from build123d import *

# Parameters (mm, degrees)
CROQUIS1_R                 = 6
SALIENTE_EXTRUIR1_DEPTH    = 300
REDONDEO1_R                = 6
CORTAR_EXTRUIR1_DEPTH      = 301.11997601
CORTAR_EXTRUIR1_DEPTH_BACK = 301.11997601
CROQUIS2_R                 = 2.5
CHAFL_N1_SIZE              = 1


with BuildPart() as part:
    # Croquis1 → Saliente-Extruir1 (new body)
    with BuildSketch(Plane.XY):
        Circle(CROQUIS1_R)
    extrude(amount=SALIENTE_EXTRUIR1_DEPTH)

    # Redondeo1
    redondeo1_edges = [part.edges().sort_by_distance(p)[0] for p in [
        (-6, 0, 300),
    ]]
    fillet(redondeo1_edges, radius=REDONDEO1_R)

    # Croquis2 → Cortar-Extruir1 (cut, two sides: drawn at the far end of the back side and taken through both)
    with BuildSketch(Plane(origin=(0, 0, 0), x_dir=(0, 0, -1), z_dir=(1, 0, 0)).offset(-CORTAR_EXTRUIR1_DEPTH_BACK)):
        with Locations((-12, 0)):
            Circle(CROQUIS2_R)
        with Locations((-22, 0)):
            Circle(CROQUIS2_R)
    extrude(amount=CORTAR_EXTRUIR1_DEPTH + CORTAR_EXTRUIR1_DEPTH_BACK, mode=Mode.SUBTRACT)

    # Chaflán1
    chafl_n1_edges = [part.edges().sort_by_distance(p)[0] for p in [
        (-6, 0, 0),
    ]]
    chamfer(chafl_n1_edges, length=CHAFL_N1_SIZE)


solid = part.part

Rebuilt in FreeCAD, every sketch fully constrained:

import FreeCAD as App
import Part
import Sketcher
from FreeCAD import Vector
Q = App.Units.Quantity


def edges_at(feature, points):
    """Names of the edges that pass closest to the given points."""
    edges = feature.Shape.Edges
    near = lambda p: min(range(len(edges)), key=lambda i: edges[i].distToShape(Part.Vertex(*p))[0])
    return sorted({f"Edge{near(p) + 1}" for p in points})

doc = App.newDocument("Part")
body = doc.addObject("PartDesign::Body", "Body")

sketch1 = doc.addObject("Sketcher::SketchObject", "Sketch")
body.addObject(sketch1)
sketch1.AttachmentSupport = (doc.XY_Plane, [""])
sketch1.MapMode = "FlatFace"
sketch1.addGeometry(Part.Circle(Vector(0, 0, 0), Vector(0, 0, 1), 6), False)
sketch1.addConstraint([
    Sketcher.Constraint("Coincident", 0, 3, -1, 1),
    Sketcher.Constraint("Diameter", 0, Q("12 mm")),
])
pad1 = doc.addObject("PartDesign::Pad", "Pad")
body.addObject(pad1)
pad1.Profile = sketch1
pad1.Length = 300
doc.recompute()

fillet = doc.addObject("PartDesign::Fillet", "Fillet")
body.addObject(fillet)
fillet.Base = (pad1, edges_at(pad1, [(-6, 0, 300)]))
fillet.Radius = 6

sketch2 = doc.addObject("Sketcher::SketchObject", "Sketch001")
body.addObject(sketch2)
sketch2.AttachmentSupport = (doc.YZ_Plane, [""])
sketch2.MapMode = "FlatFace"
sketch2.addGeometry([
    Part.Circle(Vector(0, 12, 0), Vector(0, 0, 1), 2.5),
    Part.Circle(Vector(0, 22, 0), Vector(0, 0, 1), 2.5),
], False)
sketch2.addConstraint([
    Sketcher.Constraint("Equal", 0, 1),
    Sketcher.Constraint("PointOnObject", 0, 3, -2),
    Sketcher.Constraint("PointOnObject", 1, 3, -2),
    Sketcher.Constraint("Diameter", 0, Q("5 mm")),
    Sketcher.Constraint("DistanceY", -1, 1, 0, 3, Q("12 mm")),
    Sketcher.Constraint("DistanceY", -1, 1, 1, 3, Q("22 mm")),
])
pocket1 = doc.addObject("PartDesign::Pocket", "Pocket")
body.addObject(pocket1)
pocket1.Profile = sketch2
pocket1.Type = "ThroughAll"
pocket1.Midplane = True
doc.recompute()

chamfer = doc.addObject("PartDesign::Chamfer", "Chamfer")
body.addObject(chamfer)
chamfer.Base = (pocket1, edges_at(pocket1, [(-6, 0, 0)]))
chamfer.Size = 1

doc.recompute()
